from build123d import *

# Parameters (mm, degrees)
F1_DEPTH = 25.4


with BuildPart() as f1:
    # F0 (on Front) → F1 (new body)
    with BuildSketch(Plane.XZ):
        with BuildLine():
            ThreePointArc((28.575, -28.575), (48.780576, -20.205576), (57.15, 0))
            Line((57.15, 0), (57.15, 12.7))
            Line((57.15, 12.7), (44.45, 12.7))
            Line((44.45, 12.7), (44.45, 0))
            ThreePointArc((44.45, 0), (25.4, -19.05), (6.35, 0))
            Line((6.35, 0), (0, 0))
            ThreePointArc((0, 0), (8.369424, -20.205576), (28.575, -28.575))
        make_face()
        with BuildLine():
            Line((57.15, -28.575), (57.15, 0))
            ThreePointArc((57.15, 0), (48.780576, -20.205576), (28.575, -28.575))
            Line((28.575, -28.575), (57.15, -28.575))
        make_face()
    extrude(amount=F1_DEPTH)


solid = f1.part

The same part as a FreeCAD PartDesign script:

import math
import FreeCAD as App
import Part
import Sketcher

V = App.Vector
Q = App.Units.Quantity

doc = App.newDocument("Part")
body = doc.addObject("PartDesign::Body", "Body")

# Sketch on XZ plane
sketch1 = body.newObject("Sketcher::SketchObject", "Sketch")
sketch1.AttachmentSupport = (doc.getObject("XZ_Plane"), [""])
sketch1.MapMode = "FlatFace"
sketch1.addGeometry([
    Part.LineSegment(V(57, 13, 0), V(44, 13, 0)),  # 0
    Part.LineSegment(V(44, 13, 0), V(44, 0, 0)),  # 1
    Part.ArcOfCircle(Part.Circle(V(25, 0, 0), V(0, 0, 1), 19), math.radians(180), math.radians(360)),  # 2
    Part.LineSegment(V(6, 0, 0), V(0, 0, 0)),  # 3
    Part.ArcOfCircle(Part.Circle(V(29, 0, 0), V(0, 0, 1), 29), math.radians(-180), math.radians(-90)),  # 4
    Part.LineSegment(V(29, -29, 0), V(57, -29, 0)),  # 5
    Part.LineSegment(V(57, -29, 0), V(57, 13, 0)),  # 6
], False)
sketch1.addConstraint([
    Sketcher.Constraint("Coincident", 0, 2, 1, 1),
    Sketcher.Constraint("Tangent", 1, 2, 2, 2),
    Sketcher.Constraint("Coincident", 2, 1, 3, 1),
    Sketcher.Constraint("Coincident", 3, 2, 4, 1),
    Sketcher.Constraint("Tangent", 4, 2, 5, 1),
    Sketcher.Constraint("Coincident", 5, 2, 6, 1),
    Sketcher.Constraint("Coincident", 6, 2, 0, 1),
    Sketcher.Constraint("Horizontal", 0),
    Sketcher.Constraint("Vertical", 1),
    Sketcher.Constraint("Horizontal", 3),
    Sketcher.Constraint("Horizontal", 5),
    Sketcher.Constraint("Vertical", 6),
    Sketcher.Constraint("Coincident", 3, 2, -1, 1),
    Sketcher.Constraint("PointOnObject", 2, 3, -1),
    Sketcher.Constraint("PointOnObject", 4, 3, -1),
    Sketcher.Constraint("Equal", 0, 1),
    Sketcher.Constraint("Radius", 2, Q("0.75 in")),
    Sketcher.Constraint("DistanceX", 0, 2, 0, 1, Q("0.5 in")),
    Sketcher.Constraint("DistanceX", -1, 1, 2, 3, Q("1 in")),
    Sketcher.Constraint("Radius", 4, Q("1.125 in")),
])
pad1 = body.newObject("PartDesign::Pad", "Pad")
pad1.Profile = sketch1
pad1.Length = Q("1 in")

doc.recompute()
